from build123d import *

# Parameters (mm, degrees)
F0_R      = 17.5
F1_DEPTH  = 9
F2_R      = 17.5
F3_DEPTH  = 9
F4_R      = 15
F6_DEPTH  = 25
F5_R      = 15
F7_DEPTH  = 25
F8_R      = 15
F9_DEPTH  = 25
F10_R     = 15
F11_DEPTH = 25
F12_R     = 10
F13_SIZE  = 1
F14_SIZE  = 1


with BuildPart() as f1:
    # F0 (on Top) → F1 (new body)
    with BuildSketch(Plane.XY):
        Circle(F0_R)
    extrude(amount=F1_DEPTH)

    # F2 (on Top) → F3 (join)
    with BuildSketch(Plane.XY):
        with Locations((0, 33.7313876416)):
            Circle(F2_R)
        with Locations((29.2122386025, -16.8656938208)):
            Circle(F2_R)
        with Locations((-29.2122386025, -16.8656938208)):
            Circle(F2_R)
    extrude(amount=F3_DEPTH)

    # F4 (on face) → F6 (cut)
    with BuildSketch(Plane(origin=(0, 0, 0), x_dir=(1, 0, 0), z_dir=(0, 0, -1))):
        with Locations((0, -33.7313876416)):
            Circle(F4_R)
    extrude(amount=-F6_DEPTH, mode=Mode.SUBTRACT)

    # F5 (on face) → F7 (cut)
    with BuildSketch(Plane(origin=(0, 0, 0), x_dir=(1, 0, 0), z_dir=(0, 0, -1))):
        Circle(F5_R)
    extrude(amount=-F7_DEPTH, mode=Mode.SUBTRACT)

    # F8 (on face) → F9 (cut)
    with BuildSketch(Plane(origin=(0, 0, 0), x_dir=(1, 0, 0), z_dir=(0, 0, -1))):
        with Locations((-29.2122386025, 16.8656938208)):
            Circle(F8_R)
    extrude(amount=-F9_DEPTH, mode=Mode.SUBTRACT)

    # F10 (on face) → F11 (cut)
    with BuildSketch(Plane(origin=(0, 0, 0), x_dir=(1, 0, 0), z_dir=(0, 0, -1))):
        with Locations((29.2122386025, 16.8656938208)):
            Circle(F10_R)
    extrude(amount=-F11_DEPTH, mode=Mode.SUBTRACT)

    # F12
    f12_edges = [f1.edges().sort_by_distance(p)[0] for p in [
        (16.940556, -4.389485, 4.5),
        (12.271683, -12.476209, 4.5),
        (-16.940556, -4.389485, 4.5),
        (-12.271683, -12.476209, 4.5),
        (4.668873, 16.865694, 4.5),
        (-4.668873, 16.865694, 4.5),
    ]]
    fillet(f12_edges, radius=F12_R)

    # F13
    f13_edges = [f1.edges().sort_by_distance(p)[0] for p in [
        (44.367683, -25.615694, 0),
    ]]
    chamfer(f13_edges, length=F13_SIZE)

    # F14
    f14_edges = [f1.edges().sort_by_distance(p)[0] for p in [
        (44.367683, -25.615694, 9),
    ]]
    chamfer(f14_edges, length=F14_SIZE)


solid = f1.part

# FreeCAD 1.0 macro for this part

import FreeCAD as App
import Part
import Sketcher
Q = App.Units.Quantity


def edges_at(feature, points):
    """Names of the edges that pass closest to the given points."""
    edges = feature.Shape.Edges
    near = lambda p: min(range(len(edges)), key=lambda i: edges[i].distToShape(Part.Vertex(*p))[0])
    return sorted({f"Edge{near(p) + 1}" for p in points})

doc = App.newDocument("Part")
body = doc.addObject("PartDesign::Body", "Body")

# Sketch on XY plane
sketch1 = doc.addObject("Sketcher::SketchObject", "Sketch")
body.addObject(sketch1)
sketch1.AttachmentSupport = (doc.XY_Plane, [""])
sketch1.MapMode = "FlatFace"
sketch1.addGeometry(Part.Circle(App.Vector(0, 0, 0), App.Vector(0, 0, 1), 17.5), False)
sketch1.addConstraint(Sketcher.Constraint("Coincident", 0, 3, -1, 1))
sketch1.addConstraint(Sketcher.Constraint("Diameter", 0, Q("35 mm")))
pad1 = doc.addObject("PartDesign::Pad", "Pad")
body.addObject(pad1)
pad1.Profile = sketch1
pad1.Length = 9

# Sketch on XY plane
sketch2 = doc.addObject("Sketcher::SketchObject", "Sketch001")
body.addObject(sketch2)
sketch2.AttachmentSupport = (doc.XY_Plane, [""])
sketch2.MapMode = "FlatFace"
sketch2.addGeometry(Part.Circle(App.Vector(0, 33.731388, 0), App.Vector(0, 0, 1), 17.5), False)
sketch2.addGeometry(Part.Circle(App.Vector(29.212239, -16.865694, 0), App.Vector(0, 0, 1), 17.5), False)
sketch2.addGeometry(Part.Circle(App.Vector(-29.212239, -16.865694, 0), App.Vector(0, 0, 1), 17.5), False)
sketch2.addConstraint(Sketcher.Constraint("Equal", 0, 1))
sketch2.addConstraint(Sketcher.Constraint("Equal", 1, 2))
sketch2.addConstraint(Sketcher.Constraint("Symmetric", 1, 3, 2, 3, -2))
sketch2.addConstraint(Sketcher.Constraint("PointOnObject", 0, 3, -2))
sketch2.addConstraint(Sketcher.Constraint("Diameter", 0, Q("35 mm")))
sketch2.addConstraint(Sketcher.Constraint("DistanceX", -1, 1, 1, 3, Q("29.212239 mm")))
sketch2.addConstraint(Sketcher.Constraint("DistanceY", 1, 3, 0, 3, Q("50.597081 mm")))
sketch2.addConstraint(Sketcher.Constraint("DistanceY", -1, 1, 0, 3, Q("33.731388 mm")))
pad2 = doc.addObject("PartDesign::Pad", "Pad001")
body.addObject(pad2)
pad2.Profile = sketch2
pad2.Length = 9

# Sketch on XY plane
sketch3 = doc.addObject("Sketcher::SketchObject", "Sketch002")
body.addObject(sketch3)
sketch3.AttachmentSupport = (doc.XY_Plane, [""])
sketch3.MapMode = "FlatFace"
sketch3.addGeometry(Part.Circle(App.Vector(0, 33.731388, 0), App.Vector(0, 0, 1), 15), False)
sketch3.addConstraint(Sketcher.Constraint("PointOnObject", 0, 3, -2))
sketch3.addConstraint(Sketcher.Constraint("Diameter", 0, Q("30 mm")))
sketch3.addConstraint(Sketcher.Constraint("DistanceY", -1, 1, 0, 3, Q("33.731388 mm")))
pocket1 = doc.addObject("PartDesign::Pocket", "Pocket")
body.addObject(pocket1)
pocket1.Profile = sketch3
pocket1.Length = 25
pocket1.Reversed = True

# Sketch on XY plane
sketch4 = doc.addObject("Sketcher::SketchObject", "Sketch003")
body.addObject(sketch4)
sketch4.AttachmentSupport = (doc.XY_Plane, [""])
sketch4.MapMode = "FlatFace"
sketch4.addGeometry(Part.Circle(App.Vector(0, 0, 0), App.Vector(0, 0, 1), 15), False)
sketch4.addConstraint(Sketcher.Constraint("Coincident", 0, 3, -1, 1))
sketch4.addConstraint(Sketcher.Constraint("Diameter", 0, Q("30 mm")))
pocket2 = doc.addObject("PartDesign::Pocket", "Pocket001")
body.addObject(pocket2)
pocket2.Profile = sketch4
pocket2.Length = 25
pocket2.Reversed = True

# Sketch on XY plane
sketch5 = doc.addObject("Sketcher::SketchObject", "Sketch004")
body.addObject(sketch5)
sketch5.AttachmentSupport = (doc.XY_Plane, [""])
sketch5.MapMode = "FlatFace"
sketch5.addGeometry(Part.Circle(App.Vector(-29.212239, -16.865694, 0), App.Vector(0, 0, 1), 15), False)
sketch5.addConstraint(Sketcher.Constraint("Diameter", 0, Q("30 mm")))
sketch5.addConstraint(Sketcher.Constraint("DistanceX", 0, 3, -1, 1, Q("29.212239 mm")))
sketch5.addConstraint(Sketcher.Constraint("DistanceY", 0, 3, -1, 1, Q("16.865694 mm")))
pocket3 = doc.addObject("PartDesign::Pocket", "Pocket002")
body.addObject(pocket3)
pocket3.Profile = sketch5
pocket3.Length = 25
pocket3.Reversed = True

# Sketch on XY plane
sketch6 = doc.addObject("Sketcher::SketchObject", "Sketch005")
body.addObject(sketch6)
sketch6.AttachmentSupport = (doc.XY_Plane, [""])
sketch6.MapMode = "FlatFace"
sketch6.addGeometry(Part.Circle(App.Vector(29.212239, -16.865694, 0), App.Vector(0, 0, 1), 15), False)
sketch6.addConstraint(Sketcher.Constraint("Diameter", 0, Q("30 mm")))
sketch6.addConstraint(Sketcher.Constraint("DistanceX", -1, 1, 0, 3, Q("29.212239 mm")))
sketch6.addConstraint(Sketcher.Constraint("DistanceY", 0, 3, -1, 1, Q("16.865694 mm")))
pocket4 = doc.addObject("PartDesign::Pocket", "Pocket003")
body.addObject(pocket4)
pocket4.Profile = sketch6
pocket4.Length = 25
pocket4.Reversed = True
doc.recompute()

fillet = doc.addObject("PartDesign::Fillet", "Fillet")
body.addObject(fillet)
fillet.Base = (pocket4, edges_at(pocket4, [
    (16.941, -4.389, 4.5),
    (12.272, -12.476, 4.5),
    (-16.941, -4.389, 4.5),
    (-12.272, -12.476, 4.5),
    (4.669, 16.866, 4.5),
    (-4.669, 16.866, 4.5),
]))
fillet.Radius = 10
doc.recompute()

chamfer = doc.addObject("PartDesign::Chamfer", "Chamfer")
body.addObject(chamfer)
chamfer.Base = (fillet, edges_at(fillet, [(44.368, -25.616, 0)]))
chamfer.Size = 1
doc.recompute()

chamfer2 = doc.addObject("PartDesign::Chamfer", "Chamfer001")
body.addObject(chamfer2)
chamfer2.Base = (chamfer, edges_at(chamfer, [(44.368, -25.616, 9)]))
chamfer2.Size = 1

doc.recompute()
